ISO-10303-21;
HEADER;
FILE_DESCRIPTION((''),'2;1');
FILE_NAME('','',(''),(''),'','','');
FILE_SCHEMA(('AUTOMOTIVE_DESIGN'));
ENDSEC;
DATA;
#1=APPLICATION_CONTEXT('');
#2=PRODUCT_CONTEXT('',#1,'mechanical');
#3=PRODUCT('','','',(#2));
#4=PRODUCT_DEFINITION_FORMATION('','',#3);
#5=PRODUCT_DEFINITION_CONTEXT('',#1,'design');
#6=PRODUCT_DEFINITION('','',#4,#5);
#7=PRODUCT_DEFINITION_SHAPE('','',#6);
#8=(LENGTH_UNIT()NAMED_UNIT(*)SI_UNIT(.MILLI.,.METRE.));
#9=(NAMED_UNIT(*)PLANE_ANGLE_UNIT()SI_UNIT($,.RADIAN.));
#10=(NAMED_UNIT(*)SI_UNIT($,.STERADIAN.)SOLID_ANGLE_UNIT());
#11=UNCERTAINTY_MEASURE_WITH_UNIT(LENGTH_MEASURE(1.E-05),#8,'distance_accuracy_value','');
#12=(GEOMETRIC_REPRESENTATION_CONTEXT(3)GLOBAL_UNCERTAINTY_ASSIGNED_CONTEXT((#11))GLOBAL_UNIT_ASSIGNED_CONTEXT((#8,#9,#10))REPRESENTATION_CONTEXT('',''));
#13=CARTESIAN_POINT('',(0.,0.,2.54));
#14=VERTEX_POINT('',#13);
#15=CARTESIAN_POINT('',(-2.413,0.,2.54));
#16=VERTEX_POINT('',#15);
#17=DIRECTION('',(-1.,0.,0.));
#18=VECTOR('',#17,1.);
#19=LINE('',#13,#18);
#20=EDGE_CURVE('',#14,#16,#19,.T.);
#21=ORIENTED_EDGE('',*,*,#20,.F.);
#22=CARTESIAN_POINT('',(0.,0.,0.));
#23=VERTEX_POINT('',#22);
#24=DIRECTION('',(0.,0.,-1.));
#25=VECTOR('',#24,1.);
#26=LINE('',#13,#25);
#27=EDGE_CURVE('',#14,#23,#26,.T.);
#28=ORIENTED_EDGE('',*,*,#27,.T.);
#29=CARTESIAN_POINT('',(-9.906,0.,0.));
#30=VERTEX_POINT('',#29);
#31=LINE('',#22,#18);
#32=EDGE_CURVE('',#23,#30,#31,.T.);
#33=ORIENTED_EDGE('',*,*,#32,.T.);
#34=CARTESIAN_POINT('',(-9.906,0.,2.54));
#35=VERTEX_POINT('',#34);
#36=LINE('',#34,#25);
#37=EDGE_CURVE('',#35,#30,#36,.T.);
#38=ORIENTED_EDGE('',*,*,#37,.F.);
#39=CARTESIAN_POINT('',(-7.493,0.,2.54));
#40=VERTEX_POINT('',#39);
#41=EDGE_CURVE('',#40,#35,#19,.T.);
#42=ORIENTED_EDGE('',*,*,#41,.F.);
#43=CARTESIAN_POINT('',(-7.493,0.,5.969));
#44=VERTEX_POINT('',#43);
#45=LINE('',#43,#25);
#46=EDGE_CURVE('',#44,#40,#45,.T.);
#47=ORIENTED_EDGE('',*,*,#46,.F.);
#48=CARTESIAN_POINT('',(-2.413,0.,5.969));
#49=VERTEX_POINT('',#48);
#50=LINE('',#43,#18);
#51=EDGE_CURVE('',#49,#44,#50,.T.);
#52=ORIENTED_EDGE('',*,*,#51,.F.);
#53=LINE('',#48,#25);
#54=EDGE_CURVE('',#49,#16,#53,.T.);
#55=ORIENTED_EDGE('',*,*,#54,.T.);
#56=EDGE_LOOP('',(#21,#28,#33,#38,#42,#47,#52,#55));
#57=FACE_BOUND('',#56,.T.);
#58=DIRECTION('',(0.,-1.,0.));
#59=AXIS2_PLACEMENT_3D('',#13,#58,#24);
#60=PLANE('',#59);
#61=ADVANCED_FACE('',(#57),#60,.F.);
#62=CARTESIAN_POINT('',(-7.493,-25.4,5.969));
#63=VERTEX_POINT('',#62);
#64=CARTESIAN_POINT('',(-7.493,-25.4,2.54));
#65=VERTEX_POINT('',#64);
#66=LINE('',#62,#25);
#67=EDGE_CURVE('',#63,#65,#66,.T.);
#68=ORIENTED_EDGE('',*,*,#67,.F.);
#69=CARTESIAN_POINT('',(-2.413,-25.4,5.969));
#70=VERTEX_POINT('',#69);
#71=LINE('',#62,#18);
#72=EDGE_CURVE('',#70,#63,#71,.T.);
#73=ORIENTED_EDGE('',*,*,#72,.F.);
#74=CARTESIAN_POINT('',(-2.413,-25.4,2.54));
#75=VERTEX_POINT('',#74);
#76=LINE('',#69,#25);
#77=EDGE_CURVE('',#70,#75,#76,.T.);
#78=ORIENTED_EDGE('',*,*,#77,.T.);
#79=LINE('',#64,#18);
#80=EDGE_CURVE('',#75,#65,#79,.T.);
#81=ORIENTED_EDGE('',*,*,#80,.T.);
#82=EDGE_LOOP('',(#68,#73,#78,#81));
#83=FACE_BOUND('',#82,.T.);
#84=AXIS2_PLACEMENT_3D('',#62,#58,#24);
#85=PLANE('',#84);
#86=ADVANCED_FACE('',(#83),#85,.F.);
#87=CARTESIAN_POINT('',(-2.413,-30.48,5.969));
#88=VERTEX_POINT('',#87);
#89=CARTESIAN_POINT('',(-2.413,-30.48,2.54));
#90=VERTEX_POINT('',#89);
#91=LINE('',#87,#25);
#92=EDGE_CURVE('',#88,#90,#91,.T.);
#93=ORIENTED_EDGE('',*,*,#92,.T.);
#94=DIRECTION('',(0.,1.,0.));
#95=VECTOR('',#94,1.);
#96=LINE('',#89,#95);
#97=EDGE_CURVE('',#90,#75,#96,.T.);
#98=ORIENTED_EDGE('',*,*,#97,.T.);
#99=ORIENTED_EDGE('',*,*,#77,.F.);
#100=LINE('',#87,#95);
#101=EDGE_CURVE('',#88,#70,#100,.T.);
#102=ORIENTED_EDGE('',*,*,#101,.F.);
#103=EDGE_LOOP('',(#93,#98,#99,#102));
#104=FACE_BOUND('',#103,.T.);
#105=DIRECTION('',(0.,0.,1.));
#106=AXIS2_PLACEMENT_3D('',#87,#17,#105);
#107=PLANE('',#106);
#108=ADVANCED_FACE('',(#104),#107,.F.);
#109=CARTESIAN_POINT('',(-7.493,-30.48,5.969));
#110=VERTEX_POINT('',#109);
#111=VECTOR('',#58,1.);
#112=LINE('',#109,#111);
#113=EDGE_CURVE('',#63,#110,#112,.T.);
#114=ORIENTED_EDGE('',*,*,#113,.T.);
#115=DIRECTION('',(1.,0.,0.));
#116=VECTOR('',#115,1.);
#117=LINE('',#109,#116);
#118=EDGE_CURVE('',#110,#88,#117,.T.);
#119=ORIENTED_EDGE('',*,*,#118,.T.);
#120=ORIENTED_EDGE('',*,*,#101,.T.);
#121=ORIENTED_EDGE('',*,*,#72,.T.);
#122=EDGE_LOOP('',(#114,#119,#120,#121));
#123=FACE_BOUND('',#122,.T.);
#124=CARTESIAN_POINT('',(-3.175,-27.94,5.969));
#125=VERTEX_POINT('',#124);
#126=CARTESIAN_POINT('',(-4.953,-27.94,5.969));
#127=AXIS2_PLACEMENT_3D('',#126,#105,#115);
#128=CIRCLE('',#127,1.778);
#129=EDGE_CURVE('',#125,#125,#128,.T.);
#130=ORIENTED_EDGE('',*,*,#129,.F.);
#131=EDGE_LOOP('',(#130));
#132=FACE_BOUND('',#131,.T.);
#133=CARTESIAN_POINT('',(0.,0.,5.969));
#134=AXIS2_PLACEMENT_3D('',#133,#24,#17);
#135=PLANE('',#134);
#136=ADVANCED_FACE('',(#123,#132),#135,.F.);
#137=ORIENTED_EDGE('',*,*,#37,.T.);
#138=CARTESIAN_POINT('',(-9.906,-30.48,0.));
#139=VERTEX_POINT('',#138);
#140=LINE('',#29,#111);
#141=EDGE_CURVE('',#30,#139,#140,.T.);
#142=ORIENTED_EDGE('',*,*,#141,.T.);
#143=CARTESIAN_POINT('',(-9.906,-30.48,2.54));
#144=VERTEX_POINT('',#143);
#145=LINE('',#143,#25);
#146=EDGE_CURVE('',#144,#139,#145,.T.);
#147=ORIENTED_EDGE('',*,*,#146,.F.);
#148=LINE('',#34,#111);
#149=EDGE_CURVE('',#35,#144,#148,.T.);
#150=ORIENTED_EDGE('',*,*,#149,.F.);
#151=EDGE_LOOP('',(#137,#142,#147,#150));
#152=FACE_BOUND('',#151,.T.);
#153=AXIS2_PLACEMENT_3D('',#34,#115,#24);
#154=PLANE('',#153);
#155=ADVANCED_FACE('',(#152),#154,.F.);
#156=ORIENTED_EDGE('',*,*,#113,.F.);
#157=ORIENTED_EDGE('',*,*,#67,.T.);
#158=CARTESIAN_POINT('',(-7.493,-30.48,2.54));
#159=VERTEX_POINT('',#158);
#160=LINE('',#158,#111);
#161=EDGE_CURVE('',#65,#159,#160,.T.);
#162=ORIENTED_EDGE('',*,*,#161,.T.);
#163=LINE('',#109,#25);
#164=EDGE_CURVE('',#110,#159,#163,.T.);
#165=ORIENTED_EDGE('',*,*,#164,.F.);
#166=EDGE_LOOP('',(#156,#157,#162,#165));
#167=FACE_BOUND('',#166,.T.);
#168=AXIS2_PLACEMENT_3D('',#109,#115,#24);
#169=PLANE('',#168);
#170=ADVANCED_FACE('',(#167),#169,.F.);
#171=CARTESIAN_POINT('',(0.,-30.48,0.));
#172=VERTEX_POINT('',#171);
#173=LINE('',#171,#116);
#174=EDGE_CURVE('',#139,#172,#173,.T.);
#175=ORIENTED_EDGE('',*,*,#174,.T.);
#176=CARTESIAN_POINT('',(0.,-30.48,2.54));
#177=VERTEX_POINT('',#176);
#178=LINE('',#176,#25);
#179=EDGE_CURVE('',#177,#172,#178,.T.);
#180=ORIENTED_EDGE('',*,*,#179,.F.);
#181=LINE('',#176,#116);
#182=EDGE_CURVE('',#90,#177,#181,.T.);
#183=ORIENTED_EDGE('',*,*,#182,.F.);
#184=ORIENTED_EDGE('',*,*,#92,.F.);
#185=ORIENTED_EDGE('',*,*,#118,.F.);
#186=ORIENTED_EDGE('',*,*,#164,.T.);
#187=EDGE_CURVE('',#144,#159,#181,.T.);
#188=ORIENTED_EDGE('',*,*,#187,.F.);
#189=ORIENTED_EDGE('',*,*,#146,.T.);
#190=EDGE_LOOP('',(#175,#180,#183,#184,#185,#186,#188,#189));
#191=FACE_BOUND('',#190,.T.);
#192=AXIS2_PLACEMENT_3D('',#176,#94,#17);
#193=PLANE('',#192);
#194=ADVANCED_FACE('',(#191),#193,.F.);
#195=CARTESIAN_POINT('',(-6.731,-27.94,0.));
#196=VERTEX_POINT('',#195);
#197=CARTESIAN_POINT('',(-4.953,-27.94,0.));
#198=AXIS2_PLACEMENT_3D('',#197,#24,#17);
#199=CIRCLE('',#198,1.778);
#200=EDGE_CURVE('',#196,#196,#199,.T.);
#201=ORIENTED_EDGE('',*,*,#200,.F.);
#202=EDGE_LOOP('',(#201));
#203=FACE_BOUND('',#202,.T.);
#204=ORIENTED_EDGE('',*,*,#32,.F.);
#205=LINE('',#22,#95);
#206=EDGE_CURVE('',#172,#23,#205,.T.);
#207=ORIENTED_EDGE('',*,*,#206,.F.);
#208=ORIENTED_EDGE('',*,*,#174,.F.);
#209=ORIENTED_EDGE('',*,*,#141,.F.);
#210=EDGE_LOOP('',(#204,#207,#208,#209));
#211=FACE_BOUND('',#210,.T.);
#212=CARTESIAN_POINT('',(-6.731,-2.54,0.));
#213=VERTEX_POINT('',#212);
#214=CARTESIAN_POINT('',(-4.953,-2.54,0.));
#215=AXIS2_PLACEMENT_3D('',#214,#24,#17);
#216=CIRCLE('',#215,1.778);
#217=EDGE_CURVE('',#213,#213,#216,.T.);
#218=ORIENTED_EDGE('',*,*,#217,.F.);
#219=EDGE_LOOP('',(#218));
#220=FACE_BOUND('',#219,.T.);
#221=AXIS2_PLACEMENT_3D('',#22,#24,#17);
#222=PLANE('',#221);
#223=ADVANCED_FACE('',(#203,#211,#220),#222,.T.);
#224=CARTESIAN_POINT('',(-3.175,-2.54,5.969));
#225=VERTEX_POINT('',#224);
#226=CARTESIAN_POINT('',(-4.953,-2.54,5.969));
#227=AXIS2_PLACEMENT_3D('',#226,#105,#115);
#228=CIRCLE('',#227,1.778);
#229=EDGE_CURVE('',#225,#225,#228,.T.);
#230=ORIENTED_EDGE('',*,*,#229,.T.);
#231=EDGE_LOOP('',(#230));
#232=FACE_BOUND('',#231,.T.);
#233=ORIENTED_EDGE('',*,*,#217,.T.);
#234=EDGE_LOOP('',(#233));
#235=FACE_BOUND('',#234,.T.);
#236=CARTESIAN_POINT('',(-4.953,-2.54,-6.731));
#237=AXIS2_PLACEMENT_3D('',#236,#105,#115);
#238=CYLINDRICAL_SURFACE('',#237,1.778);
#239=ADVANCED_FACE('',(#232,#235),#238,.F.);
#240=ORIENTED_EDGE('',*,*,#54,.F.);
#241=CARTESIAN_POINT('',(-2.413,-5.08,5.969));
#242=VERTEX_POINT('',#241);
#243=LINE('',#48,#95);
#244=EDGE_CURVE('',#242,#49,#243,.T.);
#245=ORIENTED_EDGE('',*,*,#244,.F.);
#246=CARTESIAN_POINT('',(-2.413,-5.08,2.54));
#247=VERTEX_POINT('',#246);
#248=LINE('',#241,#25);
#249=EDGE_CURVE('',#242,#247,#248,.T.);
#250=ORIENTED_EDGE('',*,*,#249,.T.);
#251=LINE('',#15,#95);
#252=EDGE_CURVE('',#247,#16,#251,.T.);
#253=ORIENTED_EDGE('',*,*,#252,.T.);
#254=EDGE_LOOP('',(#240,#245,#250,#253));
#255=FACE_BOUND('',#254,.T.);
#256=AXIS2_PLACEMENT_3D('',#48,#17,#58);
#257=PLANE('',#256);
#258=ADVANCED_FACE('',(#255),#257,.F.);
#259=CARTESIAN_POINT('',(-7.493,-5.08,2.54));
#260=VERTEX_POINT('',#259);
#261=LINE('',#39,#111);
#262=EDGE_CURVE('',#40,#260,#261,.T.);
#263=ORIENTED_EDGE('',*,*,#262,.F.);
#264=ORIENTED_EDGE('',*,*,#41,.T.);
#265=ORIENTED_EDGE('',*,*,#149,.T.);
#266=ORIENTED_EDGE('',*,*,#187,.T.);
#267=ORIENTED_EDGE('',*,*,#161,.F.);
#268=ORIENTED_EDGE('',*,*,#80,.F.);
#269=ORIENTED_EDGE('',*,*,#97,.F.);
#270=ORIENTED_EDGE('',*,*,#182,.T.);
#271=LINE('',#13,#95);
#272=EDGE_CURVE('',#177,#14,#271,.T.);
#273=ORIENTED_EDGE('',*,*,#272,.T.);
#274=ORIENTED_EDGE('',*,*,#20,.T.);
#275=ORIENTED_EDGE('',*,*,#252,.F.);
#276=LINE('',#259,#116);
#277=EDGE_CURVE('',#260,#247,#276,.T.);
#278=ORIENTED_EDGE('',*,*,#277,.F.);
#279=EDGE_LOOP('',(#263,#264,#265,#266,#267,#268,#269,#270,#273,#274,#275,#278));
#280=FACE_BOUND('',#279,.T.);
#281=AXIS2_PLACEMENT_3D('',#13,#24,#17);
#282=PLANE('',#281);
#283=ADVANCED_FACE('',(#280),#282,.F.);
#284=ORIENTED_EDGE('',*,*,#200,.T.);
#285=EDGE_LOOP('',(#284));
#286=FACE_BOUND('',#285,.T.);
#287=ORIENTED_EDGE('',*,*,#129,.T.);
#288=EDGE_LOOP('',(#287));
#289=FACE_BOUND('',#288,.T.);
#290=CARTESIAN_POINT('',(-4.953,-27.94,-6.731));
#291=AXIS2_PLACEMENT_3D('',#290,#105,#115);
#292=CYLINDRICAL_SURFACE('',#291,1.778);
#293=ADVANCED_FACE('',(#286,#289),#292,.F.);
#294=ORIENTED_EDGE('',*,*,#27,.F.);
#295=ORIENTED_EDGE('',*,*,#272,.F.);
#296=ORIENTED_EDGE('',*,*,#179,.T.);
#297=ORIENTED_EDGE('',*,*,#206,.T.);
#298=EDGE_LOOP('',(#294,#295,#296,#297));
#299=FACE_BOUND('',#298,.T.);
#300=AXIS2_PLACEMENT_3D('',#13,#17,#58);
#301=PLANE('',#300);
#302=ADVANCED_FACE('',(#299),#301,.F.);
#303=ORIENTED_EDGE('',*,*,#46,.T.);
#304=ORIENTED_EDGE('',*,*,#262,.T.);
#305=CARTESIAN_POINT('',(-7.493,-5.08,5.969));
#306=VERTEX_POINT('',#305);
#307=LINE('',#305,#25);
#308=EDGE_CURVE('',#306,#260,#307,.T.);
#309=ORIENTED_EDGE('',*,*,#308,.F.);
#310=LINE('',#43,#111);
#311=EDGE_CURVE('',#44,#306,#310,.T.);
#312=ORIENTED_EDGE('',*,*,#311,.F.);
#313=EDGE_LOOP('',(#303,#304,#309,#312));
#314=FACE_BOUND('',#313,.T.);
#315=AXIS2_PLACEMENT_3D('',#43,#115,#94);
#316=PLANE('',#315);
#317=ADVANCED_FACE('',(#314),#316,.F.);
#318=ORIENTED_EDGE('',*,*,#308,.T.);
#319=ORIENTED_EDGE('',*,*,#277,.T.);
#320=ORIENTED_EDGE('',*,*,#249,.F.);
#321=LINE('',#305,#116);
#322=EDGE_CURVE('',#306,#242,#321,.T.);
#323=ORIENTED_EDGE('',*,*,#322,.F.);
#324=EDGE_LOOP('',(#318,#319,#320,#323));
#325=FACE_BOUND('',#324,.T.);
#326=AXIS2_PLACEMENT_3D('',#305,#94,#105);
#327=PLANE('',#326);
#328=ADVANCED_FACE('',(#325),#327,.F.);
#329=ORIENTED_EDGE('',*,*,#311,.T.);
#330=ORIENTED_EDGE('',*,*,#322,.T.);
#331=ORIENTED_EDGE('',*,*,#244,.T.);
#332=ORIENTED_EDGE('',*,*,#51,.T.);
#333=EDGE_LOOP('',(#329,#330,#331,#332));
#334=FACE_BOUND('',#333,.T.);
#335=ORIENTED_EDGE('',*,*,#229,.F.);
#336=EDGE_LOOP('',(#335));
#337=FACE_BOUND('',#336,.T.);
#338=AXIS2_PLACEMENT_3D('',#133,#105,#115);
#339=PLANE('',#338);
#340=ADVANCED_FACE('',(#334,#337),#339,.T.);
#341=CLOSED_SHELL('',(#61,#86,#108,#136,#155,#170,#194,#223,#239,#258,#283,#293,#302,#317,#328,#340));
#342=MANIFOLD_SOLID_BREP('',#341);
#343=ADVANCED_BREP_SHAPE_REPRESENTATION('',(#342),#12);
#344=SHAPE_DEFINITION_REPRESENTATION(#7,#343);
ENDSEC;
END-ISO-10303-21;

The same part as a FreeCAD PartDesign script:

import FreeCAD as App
import Part
import Sketcher
Q = App.Units.Quantity


def add_polygon(sketch, points):
    """Adds a closed chain of lines whose ends are joined by coincident constraints."""
    first, n = sketch.GeometryCount, len(points)
    for a, b in zip(points, points[1:] + points[:1]):
        sketch.addGeometry(Part.LineSegment(App.Vector(*a, 0), App.Vector(*b, 0)), False)
    for i in range(n):
        sketch.addConstraint(Sketcher.Constraint("Coincident", first + i, 2, first + (i + 1) % n, 1))

doc = App.newDocument("Part")
body = doc.addObject("PartDesign::Body", "Body")

sketch1 = body.newObject("Sketcher::SketchObject", "Sketch")
sketch1.AttachmentSupport = (doc.getObject("XY_Plane"), [""])
sketch1.MapMode = "FlatFace"
add_polygon(sketch1, [(-10, 0), (-10, -30), (0, -30), (0, 0)])
sketch1.addConstraint([
    Sketcher.Constraint("Vertical", 0),
    Sketcher.Constraint("Horizontal", 1),
    Sketcher.Constraint("Vertical", 2),
    Sketcher.Constraint("Horizontal", 3),
    Sketcher.Constraint("Coincident", 2, 2, -1, 1),
    Sketcher.Constraint("DistanceY", 0, 2, 0, 1, Q("1.2 in")),
    Sketcher.Constraint("DistanceX", 1, 1, 1, 2, Q("0.39 in")),
])
pad1 = body.newObject("PartDesign::Pad", "Pad")
pad1.Profile = sketch1
pad1.Length = Q("0.1 in")

sketch2 = body.newObject("Sketcher::SketchObject", "Sketch001")
sketch2.AttachmentSupport = (doc.getObject("XY_Plane"), [""])
sketch2.MapMode = "FlatFace"
sketch2.AttachmentOffset = App.Placement(App.Vector(0, 0, 0.1 * 25.4), App.Rotation())
add_polygon(sketch2, [(-7, 0), (-7, -5), (-2, -5), (-2, 0)])
add_polygon(sketch2, [(-7, -25), (-7, -30), (-2, -30), (-2, -25)])
sketch2.addConstraint([
    Sketcher.Constraint("Vertical", 0),
    Sketcher.Constraint("Horizontal", 1),
    Sketcher.Constraint("Vertical", 2),
    Sketcher.Constraint("Horizontal", 3),
    Sketcher.Constraint("Vertical", 4),
    Sketcher.Constraint("Horizontal", 5),
    Sketcher.Constraint("Vertical", 6),
    Sketcher.Constraint("Horizontal", 7),
    Sketcher.Constraint("PointOnObject", 2, 2, -1),
    Sketcher.Constraint("Vertical", 3, 2, 4, 2),
    Sketcher.Constraint("Vertical", 2, 2, 5, 2),
    Sketcher.Constraint("Equal", 7, 0),
    Sketcher.Constraint("Equal", 2, 4),
    Sketcher.Constraint("DistanceX", 1, 1, 1, 2, Q("0.2 in")),
    Sketcher.Constraint("DistanceY", 6, 2, -1, 1, Q("1 in")),
    Sketcher.Constraint("DistanceX", 0, 2, -1, 1, Q("0.295 in")),
])
pad2 = body.newObject("PartDesign::Pad", "Pad001")
pad2.Profile = sketch2
pad2.Length = Q("0.135 in")

sketch3 = body.newObject("Sketcher::SketchObject", "Sketch002")
sketch3.AttachmentSupport = (doc.getObject("XY_Plane"), [""])
sketch3.MapMode = "FlatFace"
sketch3.AttachmentOffset = App.Placement(App.Vector(0, 0, 0.235 * 25.4), App.Rotation())
sketch3.addGeometry([
    Part.Circle(App.Vector(-5, -27.9, 0), App.Vector(0, 0, 1), 1.8),
    Part.Circle(App.Vector(-5, -2.5, 0), App.Vector(0, 0, 1), 1.8),
], False)
sketch3.addConstraint([
    Sketcher.Constraint("Equal", 0, 1),
    Sketcher.Constraint("Vertical", 0, 3, 1, 3),
    Sketcher.Constraint("Diameter", 0, Q("0.14 in")),
    Sketcher.Constraint("DistanceY", 0, 3, 1, 3, Q("1 in")),
    Sketcher.Constraint("DistanceY", 0, 3, -1, 1, Q("1.1 in")),
    Sketcher.Constraint("DistanceX", 0, 3, -1, 1, Q("0.195 in")),
])
pocket1 = body.newObject("PartDesign::Pocket", "Pocket")
pocket1.Profile = sketch3
pocket1.Length = Q("0.5 in")

doc.recompute()
